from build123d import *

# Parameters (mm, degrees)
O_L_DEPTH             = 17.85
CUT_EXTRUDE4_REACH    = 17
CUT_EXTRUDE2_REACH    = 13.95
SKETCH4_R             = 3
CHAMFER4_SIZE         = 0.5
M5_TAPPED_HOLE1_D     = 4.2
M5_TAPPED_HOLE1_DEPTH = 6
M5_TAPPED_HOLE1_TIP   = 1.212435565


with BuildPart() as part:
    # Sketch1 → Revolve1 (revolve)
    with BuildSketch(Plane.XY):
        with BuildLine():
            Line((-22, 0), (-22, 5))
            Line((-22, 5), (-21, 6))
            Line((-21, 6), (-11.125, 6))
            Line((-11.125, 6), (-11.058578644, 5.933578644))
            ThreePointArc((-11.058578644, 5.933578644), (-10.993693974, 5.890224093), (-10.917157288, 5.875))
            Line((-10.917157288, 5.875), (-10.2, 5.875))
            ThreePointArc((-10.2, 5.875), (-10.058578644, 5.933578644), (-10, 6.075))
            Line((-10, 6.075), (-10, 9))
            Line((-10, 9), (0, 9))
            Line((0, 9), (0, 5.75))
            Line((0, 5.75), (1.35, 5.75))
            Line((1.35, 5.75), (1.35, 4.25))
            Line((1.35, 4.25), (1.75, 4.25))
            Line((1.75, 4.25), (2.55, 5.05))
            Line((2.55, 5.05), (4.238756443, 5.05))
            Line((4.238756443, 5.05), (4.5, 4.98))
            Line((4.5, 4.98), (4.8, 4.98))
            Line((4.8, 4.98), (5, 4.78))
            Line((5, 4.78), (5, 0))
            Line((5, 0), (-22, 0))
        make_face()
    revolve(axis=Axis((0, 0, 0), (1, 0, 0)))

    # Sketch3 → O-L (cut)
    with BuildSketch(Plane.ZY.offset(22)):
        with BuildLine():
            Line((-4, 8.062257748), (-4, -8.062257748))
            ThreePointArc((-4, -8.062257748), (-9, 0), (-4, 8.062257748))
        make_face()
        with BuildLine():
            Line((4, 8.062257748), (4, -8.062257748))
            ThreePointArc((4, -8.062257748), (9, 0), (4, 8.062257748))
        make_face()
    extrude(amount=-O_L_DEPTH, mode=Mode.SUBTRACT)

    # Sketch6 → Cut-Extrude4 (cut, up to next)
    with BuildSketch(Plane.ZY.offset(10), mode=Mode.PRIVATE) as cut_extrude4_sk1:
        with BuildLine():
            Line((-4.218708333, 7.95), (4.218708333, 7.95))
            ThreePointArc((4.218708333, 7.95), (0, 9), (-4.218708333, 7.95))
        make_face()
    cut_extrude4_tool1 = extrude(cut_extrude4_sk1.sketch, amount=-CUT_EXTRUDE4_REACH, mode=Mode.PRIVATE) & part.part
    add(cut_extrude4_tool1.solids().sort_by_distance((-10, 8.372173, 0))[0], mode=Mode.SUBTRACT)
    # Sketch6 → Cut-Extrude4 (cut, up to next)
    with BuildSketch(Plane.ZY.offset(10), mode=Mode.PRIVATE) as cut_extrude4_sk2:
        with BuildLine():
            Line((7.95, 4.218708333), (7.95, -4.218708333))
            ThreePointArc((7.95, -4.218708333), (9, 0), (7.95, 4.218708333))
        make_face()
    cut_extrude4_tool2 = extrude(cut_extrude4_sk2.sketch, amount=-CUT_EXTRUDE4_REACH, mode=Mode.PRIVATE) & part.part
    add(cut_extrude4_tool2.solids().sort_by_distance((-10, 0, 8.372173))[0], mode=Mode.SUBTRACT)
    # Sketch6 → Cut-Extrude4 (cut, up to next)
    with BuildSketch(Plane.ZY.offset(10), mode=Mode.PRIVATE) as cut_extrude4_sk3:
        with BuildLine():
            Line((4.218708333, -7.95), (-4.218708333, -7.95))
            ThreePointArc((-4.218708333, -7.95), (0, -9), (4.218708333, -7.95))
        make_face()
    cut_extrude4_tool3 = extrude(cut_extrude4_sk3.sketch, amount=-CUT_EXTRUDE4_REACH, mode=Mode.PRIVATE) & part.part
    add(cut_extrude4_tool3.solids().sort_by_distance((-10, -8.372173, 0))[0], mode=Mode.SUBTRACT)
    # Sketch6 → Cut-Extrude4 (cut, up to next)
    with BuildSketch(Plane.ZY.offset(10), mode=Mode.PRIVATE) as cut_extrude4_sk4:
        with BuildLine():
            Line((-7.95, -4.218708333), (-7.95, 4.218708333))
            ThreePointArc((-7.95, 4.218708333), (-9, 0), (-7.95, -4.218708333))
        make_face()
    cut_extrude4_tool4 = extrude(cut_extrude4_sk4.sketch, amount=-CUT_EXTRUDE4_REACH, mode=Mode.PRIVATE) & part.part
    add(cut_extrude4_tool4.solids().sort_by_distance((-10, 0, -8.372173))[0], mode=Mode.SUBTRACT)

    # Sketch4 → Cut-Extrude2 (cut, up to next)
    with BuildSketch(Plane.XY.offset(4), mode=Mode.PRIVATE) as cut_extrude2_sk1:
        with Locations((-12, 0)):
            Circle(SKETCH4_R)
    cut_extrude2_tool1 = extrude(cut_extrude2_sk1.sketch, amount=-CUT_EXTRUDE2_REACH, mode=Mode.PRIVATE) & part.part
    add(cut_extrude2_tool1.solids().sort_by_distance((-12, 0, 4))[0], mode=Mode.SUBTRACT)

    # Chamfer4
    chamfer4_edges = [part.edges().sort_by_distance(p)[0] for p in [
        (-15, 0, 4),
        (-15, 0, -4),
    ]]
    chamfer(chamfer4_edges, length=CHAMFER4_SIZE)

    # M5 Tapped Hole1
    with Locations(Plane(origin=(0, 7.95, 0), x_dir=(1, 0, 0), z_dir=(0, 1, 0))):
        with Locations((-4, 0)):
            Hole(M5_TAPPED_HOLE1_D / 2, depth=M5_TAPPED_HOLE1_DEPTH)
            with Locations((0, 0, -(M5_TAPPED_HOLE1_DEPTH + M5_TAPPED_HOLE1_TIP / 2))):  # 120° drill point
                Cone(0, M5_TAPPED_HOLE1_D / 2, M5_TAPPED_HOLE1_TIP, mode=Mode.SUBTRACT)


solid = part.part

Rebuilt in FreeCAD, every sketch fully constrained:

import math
import FreeCAD as App
import Part
import Sketcher

V = App.Vector
Q = App.Units.Quantity


def edges_at(feature, points):
    """Names of the edges that pass closest to the given points."""
    edges = feature.Shape.Edges
    near = lambda p: min(range(len(edges)), key=lambda i: edges[i].distToShape(Part.Vertex(*p))[0])
    return sorted({f"Edge{near(p) + 1}" for p in points})

doc = App.newDocument("Part")
body = doc.addObject("PartDesign::Body", "Body")

sketch1 = body.newObject("Sketcher::SketchObject", "Sketch")
sketch1.AttachmentSupport = (doc.getObject("XY_Plane"), [""])
sketch1.MapMode = "FlatFace"
sketch1.addGeometry(Part.LineSegment(V(-22, 5, 0), V(-22, 0, 0)), False)
sketch1.addGeometry(Part.LineSegment(V(-22, 0, 0), V(5, 0, 0)), False)
sketch1.addGeometry(Part.LineSegment(V(5, 0, 0), V(5, 4.78, 0)), False)
sketch1.addGeometry(Part.LineSegment(V(5, 4.78, 0), V(4.8, 4.98, 0)), False)
sketch1.addGeometry(Part.LineSegment(V(4.8, 4.98, 0), V(4.5, 4.98, 0)), False)
sketch1.addGeometry(Part.LineSegment(V(4.5, 4.98, 0), V(4.24, 5.05, 0)), False)
sketch1.addGeometry(Part.LineSegment(V(4.24, 5.05, 0), V(2.55, 5.05, 0)), False)
sketch1.addGeometry(Part.LineSegment(V(2.55, 5.05, 0), V(1.75, 4.25, 0)), False)
sketch1.addGeometry(Part.LineSegment(V(1.75, 4.25, 0), V(1.35, 4.25, 0)), False)
sketch1.addGeometry(Part.LineSegment(V(1.35, 4.25, 0), V(1.35, 5.75, 0)), False)
sketch1.addGeometry(Part.LineSegment(V(1.35, 5.75, 0), V(0, 5.75, 0)), False)
sketch1.addGeometry(Part.LineSegment(V(0, 5.75, 0), V(0, 9, 0)), False)
sketch1.addGeometry(Part.LineSegment(V(0, 9, 0), V(-10, 9, 0)), False)
sketch1.addGeometry(Part.LineSegment(V(-10, 9, 0), V(-10, 6.08, 0)), False)
sketch1.addGeometry(Part.ArcOfCircle(Part.Circle(V(-10.2, 6.08, 0), V(0, 0, 1), 0.2), math.radians(-90), math.radians(0)), False)
sketch1.addGeometry(Part.LineSegment(V(-10.2, 5.88, 0), V(-10.92, 5.88, 0)), False)
sketch1.addGeometry(Part.ArcOfCircle(Part.Circle(V(-10.92, 6.07, 0), V(0, 0, 1), 0.2), math.radians(-135), math.radians(-90)), False)
sketch1.addGeometry(Part.LineSegment(V(-11.06, 5.93, 0), V(-11.12, 6, 0)), False)
sketch1.addGeometry(Part.LineSegment(V(-11.12, 6, 0), V(-21, 6, 0)), False)
sketch1.addGeometry(Part.LineSegment(V(-21, 6, 0), V(-22, 5, 0)), False)
sketch1.addConstraint(Sketcher.Constraint("Coincident", 0, 2, 1, 1))
sketch1.addConstraint(Sketcher.Constraint("Coincident", 1, 2, 2, 1))
sketch1.addConstraint(Sketcher.Constraint("Coincident", 2, 2, 3, 1))
sketch1.addConstraint(Sketcher.Constraint("Coincident", 3, 2, 4, 1))
sketch1.addConstraint(Sketcher.Constraint("Coincident", 4, 2, 5, 1))
sketch1.addConstraint(Sketcher.Constraint("Coincident", 5, 2, 6, 1))
sketch1.addConstraint(Sketcher.Constraint("Coincident", 6, 2, 7, 1))
sketch1.addConstraint(Sketcher.Constraint("Coincident", 7, 2, 8, 1))
sketch1.addConstraint(Sketcher.Constraint("Coincident", 8, 2, 9, 1))
sketch1.addConstraint(Sketcher.Constraint("Coincident", 9, 2, 10, 1))
sketch1.addConstraint(Sketcher.Constraint("Coincident", 10, 2, 11, 1))
sketch1.addConstraint(Sketcher.Constraint("Coincident", 11, 2, 12, 1))
sketch1.addConstraint(Sketcher.Constraint("Coincident", 12, 2, 13, 1))
sketch1.addConstraint(Sketcher.Constraint("Tangent", 13, 2, 14, 2))
sketch1.addConstraint(Sketcher.Constraint("Tangent", 14, 1, 15, 1))
sketch1.addConstraint(Sketcher.Constraint("Tangent", 15, 2, 16, 2))
sketch1.addConstraint(Sketcher.Constraint("Tangent", 16, 1, 17, 1))
sketch1.addConstraint(Sketcher.Constraint("Coincident", 17, 2, 18, 1))
sketch1.addConstraint(Sketcher.Constraint("Coincident", 18, 2, 19, 1))
sketch1.addConstraint(Sketcher.Constraint("Coincident", 19, 2, 0, 1))
sketch1.addConstraint(Sketcher.Constraint("Vertical", 0))
sketch1.addConstraint(Sketcher.Constraint("Horizontal", 1))
sketch1.addConstraint(Sketcher.Constraint("Vertical", 2))
sketch1.addConstraint(Sketcher.Constraint("Horizontal", 4))
sketch1.addConstraint(Sketcher.Constraint("Horizontal", 6))
sketch1.addConstraint(Sketcher.Constraint("Horizontal", 8))
sketch1.addConstraint(Sketcher.Constraint("Vertical", 9))
sketch1.addConstraint(Sketcher.Constraint("Horizontal", 10))
sketch1.addConstraint(Sketcher.Constraint("Vertical", 11))
sketch1.addConstraint(Sketcher.Constraint("Horizontal", 12))
sketch1.addConstraint(Sketcher.Constraint("Vertical", 13))
sketch1.addConstraint(Sketcher.Constraint("Horizontal", 15))
sketch1.addConstraint(Sketcher.Constraint("Horizontal", 18))
sketch1.addConstraint(Sketcher.Constraint("Equal", 14, 16))
sketch1.addConstraint(Sketcher.Constraint("PointOnObject", 0, 2, -1))
sketch1.addConstraint(Sketcher.Constraint("PointOnObject", 10, 2, -2))
sketch1.addConstraint(Sketcher.Constraint("Perpendicular", 3, 7))
sketch1.addConstraint(Sketcher.Constraint("Perpendicular", 7, 17))
sketch1.addConstraint(Sketcher.Constraint("Perpendicular", 17, 19))
sketch1.addConstraint(Sketcher.Constraint("Radius", 14, Q("0.2 mm")))
sketch1.addConstraint(Sketcher.Constraint("DistanceX", 1, 1, 1, 2, Q("27 mm")))
sketch1.addConstraint(Sketcher.Constraint("DistanceX", 12, 2, 12, 1, Q("10 mm")))
sketch1.addConstraint(Sketcher.Constraint("DistanceY", 0, 2, 0, 1, Q("5 mm")))
sketch1.addConstraint(Sketcher.Constraint("Angle", 3, Q("135 deg")))
sketch1.addConstraint(Sketcher.Constraint("Angle", 5, Q("165 deg")))
sketch1.addConstraint(Sketcher.Constraint("DistanceX", 4, 2, 4, 1, Q("0.3 mm")))
sketch1.addConstraint(Sketcher.Constraint("DistanceX", 8, 2, 8, 1, Q("0.4 mm")))
sketch1.addConstraint(Sketcher.Constraint("DistanceY", 9, 1, 9, 2, Q("1.5 mm")))
sketch1.addConstraint(Sketcher.Constraint("DistanceX", 0, 2, -1, 1, Q("22 mm")))
sketch1.addConstraint(Sketcher.Constraint("DistanceY", -1, 1, 11, 2, Q("9 mm")))
sketch1.addConstraint(Sketcher.Constraint("DistanceY", -1, 1, 17, 2, Q("6 mm")))
sketch1.addConstraint(Sketcher.Constraint("DistanceX", 14, 3, 3, 2, Q("15 mm")))
sketch1.addConstraint(Sketcher.Constraint("DistanceX", 10, 2, 10, 1, Q("1.35 mm")))
sketch1.addConstraint(Sketcher.Constraint("DistanceY", 2, 1, 2, 2, Q("4.78 mm")))
sketch1.addConstraint(Sketcher.Constraint("DistanceY", 11, 1, 11, 2, Q("3.25 mm")))
sketch1.addConstraint(Sketcher.Constraint("DistanceX", 7, 2, 6, 2, Q("0.8 mm")))
sketch1.addConstraint(Sketcher.Constraint("DistanceX", 18, 2, 18, 1, Q("9.875 mm")))
sketch1.addConstraint(Sketcher.Constraint("DistanceY", 13, 2, 13, 1, Q("2.925 mm")))
revolution = body.newObject("PartDesign::Revolution", "Revolution")
revolution.Profile = sketch1
revolution.ReferenceAxis = (sketch1, ["H_Axis"])
revolution.Angle = 360

sketch2 = body.newObject("Sketcher::SketchObject", "Sketch001")
sketch2.AttachmentSupport = (doc.getObject("YZ_Plane"), [""])
sketch2.MapMode = "FlatFace"
sketch2.AttachmentOffset = App.Placement(V(0, 0, -22), App.Rotation())
sketch2.addGeometry(Part.LineSegment(V(-8, -4, 0), V(8, -4, 0)), False)
sketch2.addGeometry(Part.ArcOfCircle(Part.Circle(V(0, 0, 0), V(0, 0, 1), 9), math.radians(-154), math.radians(-26)), False)
sketch2.addGeometry(Part.LineSegment(V(8, 4, 0), V(-8, 4, 0)), False)
sketch2.addGeometry(Part.ArcOfCircle(Part.Circle(V(0, 0, 0), V(0, 0, 1), 9), math.radians(26), math.radians(154)), False)
sketch2.addConstraint(Sketcher.Constraint("Coincident", 0, 1, 1, 1))
sketch2.addConstraint(Sketcher.Constraint("Coincident", 1, 2, 0, 2))
sketch2.addConstraint(Sketcher.Constraint("Coincident", 2, 1, 3, 1))
sketch2.addConstraint(Sketcher.Constraint("Coincident", 3, 2, 2, 2))
sketch2.addConstraint(Sketcher.Constraint("Horizontal", 0))
sketch2.addConstraint(Sketcher.Constraint("Horizontal", 2))
sketch2.addConstraint(Sketcher.Constraint("Coincident", 1, 3, -1, 1))
sketch2.addConstraint(Sketcher.Constraint("Coincident", 3, 3, -1, 1))
sketch2.addConstraint(Sketcher.Constraint("Equal", 1, 3))
sketch2.addConstraint(Sketcher.Constraint("Vertical", 1, 2, 2, 1))
sketch2.addConstraint(Sketcher.Constraint("Radius", 1, Q("9 mm")))
sketch2.addConstraint(Sketcher.Constraint("DistanceY", 0, 1, -1, 1, Q("4 mm")))
pocket1 = body.newObject("PartDesign::Pocket", "Pocket")
pocket1.Profile = sketch2
pocket1.Length = 17.85
pocket1.Reversed = True

sketch3 = body.newObject("Sketcher::SketchObject", "Sketch002")
sketch3.AttachmentSupport = (doc.getObject("YZ_Plane"), [""])
sketch3.MapMode = "FlatFace"
sketch3.AttachmentOffset = App.Placement(V(0, 0, -10), App.Rotation())
sketch3.addGeometry(Part.LineSegment(V(8, -4, 0), V(8, 4, 0)), False)
sketch3.addGeometry(Part.ArcOfCircle(Part.Circle(V(0, 0, 0), V(0, 0, 1), 9), math.radians(-28), math.radians(28)), False)
sketch3.addConstraint(Sketcher.Constraint("Coincident", 0, 1, 1, 1))
sketch3.addConstraint(Sketcher.Constraint("Coincident", 1, 2, 0, 2))
sketch3.addConstraint(Sketcher.Constraint("Vertical", 0))
sketch3.addConstraint(Sketcher.Constraint("Coincident", 1, 3, -1, 1))
sketch3.addConstraint(Sketcher.Constraint("Radius", 1, Q("9 mm")))
sketch3.addConstraint(Sketcher.Constraint("DistanceX", -1, 1, 0, 1, Q("7.95 mm")))
pocket2 = body.newObject("PartDesign::Pocket", "Pocket001")
pocket2.Profile = sketch3
pocket2.Type = "UpToFirst"
pocket2.Reversed = True

sketch4 = body.newObject("Sketcher::SketchObject", "Sketch003")
sketch4.AttachmentSupport = (doc.getObject("YZ_Plane"), [""])
sketch4.MapMode = "FlatFace"
sketch4.AttachmentOffset = App.Placement(V(0, 0, -10), App.Rotation())
sketch4.addGeometry(Part.LineSegment(V(4, 8, 0), V(-4, 8, 0)), False)
sketch4.addGeometry(Part.ArcOfCircle(Part.Circle(V(0, 0, 0), V(0, 0, 1), 9), math.radians(62), math.radians(118)), False)
sketch4.addConstraint(Sketcher.Constraint("Coincident", 0, 1, 1, 1))
sketch4.addConstraint(Sketcher.Constraint("Coincident", 1, 2, 0, 2))
sketch4.addConstraint(Sketcher.Constraint("Horizontal", 0))
sketch4.addConstraint(Sketcher.Constraint("Coincident", 1, 3, -1, 1))
sketch4.addConstraint(Sketcher.Constraint("Radius", 1, Q("9 mm")))
sketch4.addConstraint(Sketcher.Constraint("DistanceY", -1, 1, 0, 1, Q("7.95 mm")))
pocket3 = body.newObject("PartDesign::Pocket", "Pocket002")
pocket3.Profile = sketch4
pocket3.Length = 10
pocket3.Reversed = True

sketch5 = body.newObject("Sketcher::SketchObject", "Sketch004")
sketch5.AttachmentSupport = (doc.getObject("YZ_Plane"), [""])
sketch5.MapMode = "FlatFace"
sketch5.AttachmentOffset = App.Placement(V(0, 0, -10), App.Rotation())
sketch5.addGeometry(Part.LineSegment(V(-8, 4, 0), V(-8, -4, 0)), False)
sketch5.addGeometry(Part.ArcOfCircle(Part.Circle(V(0, 0, 0), V(0, 0, 1), 9), math.radians(152), math.radians(208)), False)
sketch5.addConstraint(Sketcher.Constraint("Coincident", 0, 1, 1, 1))
sketch5.addConstraint(Sketcher.Constraint("Coincident", 1, 2, 0, 2))
sketch5.addConstraint(Sketcher.Constraint("Vertical", 0))
sketch5.addConstraint(Sketcher.Constraint("Coincident", 1, 3, -1, 1))
sketch5.addConstraint(Sketcher.Constraint("Radius", 1, Q("9 mm")))
sketch5.addConstraint(Sketcher.Constraint("DistanceX", 0, 1, -1, 1, Q("7.95 mm")))
pocket4 = body.newObject("PartDesign::Pocket", "Pocket003")
pocket4.Profile = sketch5
pocket4.Type = "UpToFirst"
pocket4.Reversed = True

sketch6 = body.newObject("Sketcher::SketchObject", "Sketch005")
sketch6.AttachmentSupport = (doc.getObject("YZ_Plane"), [""])
sketch6.MapMode = "FlatFace"
sketch6.AttachmentOffset = App.Placement(V(0, 0, -10), App.Rotation())
sketch6.addGeometry(Part.LineSegment(V(-4, -8, 0), V(4, -8, 0)), False)
sketch6.addGeometry(Part.ArcOfCircle(Part.Circle(V(0, 0, 0), V(0, 0, 1), 9), math.radians(-118), math.radians(-62)), False)
sketch6.addConstraint(Sketcher.Constraint("Coincident", 0, 1, 1, 1))
sketch6.addConstraint(Sketcher.Constraint("Coincident", 1, 2, 0, 2))
sketch6.addConstraint(Sketcher.Constraint("Horizontal", 0))
sketch6.addConstraint(Sketcher.Constraint("Coincident", 1, 3, -1, 1))
sketch6.addConstraint(Sketcher.Constraint("Radius", 1, Q("9 mm")))
sketch6.addConstraint(Sketcher.Constraint("DistanceY", 0, 1, -1, 1, Q("7.95 mm")))
pocket5 = body.newObject("PartDesign::Pocket", "Pocket004")
pocket5.Profile = sketch6
pocket5.Length = 10
pocket5.Reversed = True

sketch7 = body.newObject("Sketcher::SketchObject", "Sketch006")
sketch7.AttachmentSupport = (doc.getObject("XY_Plane"), [""])
sketch7.MapMode = "FlatFace"
sketch7.AttachmentOffset = App.Placement(V(0, 0, 4), App.Rotation())
sketch7.addGeometry(Part.Circle(V(-12, 0, 0), V(0, 0, 1), 3), False)
sketch7.addConstraint(Sketcher.Constraint("PointOnObject", 0, 3, -1))
sketch7.addConstraint(Sketcher.Constraint("Diameter", 0, Q("6 mm")))
sketch7.addConstraint(Sketcher.Constraint("DistanceX", 0, 3, -1, 1, Q("12 mm")))
pocket6 = body.newObject("PartDesign::Pocket", "Pocket005")
pocket6.Profile = sketch7
pocket6.Type = "UpToFirst"
doc.recompute()

chamfer = body.newObject("PartDesign::Chamfer", "Chamfer")
chamfer.Base = (pocket6, edges_at(pocket6, [(-15, 0, 4), (-15, 0, -4)]))
chamfer.Size = 0.5

sketch8 = body.newObject("Sketcher::SketchObject", "Sketch007")
sketch8.AttachmentSupport = (doc.getObject("XZ_Plane"), [""])
sketch8.MapMode = "FlatFace"
sketch8.AttachmentOffset = App.Placement(V(0, 0, -7.95), App.Rotation())
sketch8.addGeometry(Part.Circle(V(-4, 0, 0), V(0, 0, 1), 2.1), False)
sketch8.addConstraint(Sketcher.Constraint("PointOnObject", 0, 3, -1))
sketch8.addConstraint(Sketcher.Constraint("Diameter", 0, Q("4.2 mm")))
sketch8.addConstraint(Sketcher.Constraint("DistanceX", 0, 3, -1, 1, Q("4 mm")))
doc.recompute()
hole = body.newObject("PartDesign::Hole", "Hole")
hole.Profile = sketch8
hole.ThreadType = "None"
hole.Diameter = 4.2
hole.DepthType = "Dimension"
hole.Depth = 6
hole.DrillPoint = "Angled"
hole.DrillPointAngle = 120
hole.Reversed = True

doc.recompute()
